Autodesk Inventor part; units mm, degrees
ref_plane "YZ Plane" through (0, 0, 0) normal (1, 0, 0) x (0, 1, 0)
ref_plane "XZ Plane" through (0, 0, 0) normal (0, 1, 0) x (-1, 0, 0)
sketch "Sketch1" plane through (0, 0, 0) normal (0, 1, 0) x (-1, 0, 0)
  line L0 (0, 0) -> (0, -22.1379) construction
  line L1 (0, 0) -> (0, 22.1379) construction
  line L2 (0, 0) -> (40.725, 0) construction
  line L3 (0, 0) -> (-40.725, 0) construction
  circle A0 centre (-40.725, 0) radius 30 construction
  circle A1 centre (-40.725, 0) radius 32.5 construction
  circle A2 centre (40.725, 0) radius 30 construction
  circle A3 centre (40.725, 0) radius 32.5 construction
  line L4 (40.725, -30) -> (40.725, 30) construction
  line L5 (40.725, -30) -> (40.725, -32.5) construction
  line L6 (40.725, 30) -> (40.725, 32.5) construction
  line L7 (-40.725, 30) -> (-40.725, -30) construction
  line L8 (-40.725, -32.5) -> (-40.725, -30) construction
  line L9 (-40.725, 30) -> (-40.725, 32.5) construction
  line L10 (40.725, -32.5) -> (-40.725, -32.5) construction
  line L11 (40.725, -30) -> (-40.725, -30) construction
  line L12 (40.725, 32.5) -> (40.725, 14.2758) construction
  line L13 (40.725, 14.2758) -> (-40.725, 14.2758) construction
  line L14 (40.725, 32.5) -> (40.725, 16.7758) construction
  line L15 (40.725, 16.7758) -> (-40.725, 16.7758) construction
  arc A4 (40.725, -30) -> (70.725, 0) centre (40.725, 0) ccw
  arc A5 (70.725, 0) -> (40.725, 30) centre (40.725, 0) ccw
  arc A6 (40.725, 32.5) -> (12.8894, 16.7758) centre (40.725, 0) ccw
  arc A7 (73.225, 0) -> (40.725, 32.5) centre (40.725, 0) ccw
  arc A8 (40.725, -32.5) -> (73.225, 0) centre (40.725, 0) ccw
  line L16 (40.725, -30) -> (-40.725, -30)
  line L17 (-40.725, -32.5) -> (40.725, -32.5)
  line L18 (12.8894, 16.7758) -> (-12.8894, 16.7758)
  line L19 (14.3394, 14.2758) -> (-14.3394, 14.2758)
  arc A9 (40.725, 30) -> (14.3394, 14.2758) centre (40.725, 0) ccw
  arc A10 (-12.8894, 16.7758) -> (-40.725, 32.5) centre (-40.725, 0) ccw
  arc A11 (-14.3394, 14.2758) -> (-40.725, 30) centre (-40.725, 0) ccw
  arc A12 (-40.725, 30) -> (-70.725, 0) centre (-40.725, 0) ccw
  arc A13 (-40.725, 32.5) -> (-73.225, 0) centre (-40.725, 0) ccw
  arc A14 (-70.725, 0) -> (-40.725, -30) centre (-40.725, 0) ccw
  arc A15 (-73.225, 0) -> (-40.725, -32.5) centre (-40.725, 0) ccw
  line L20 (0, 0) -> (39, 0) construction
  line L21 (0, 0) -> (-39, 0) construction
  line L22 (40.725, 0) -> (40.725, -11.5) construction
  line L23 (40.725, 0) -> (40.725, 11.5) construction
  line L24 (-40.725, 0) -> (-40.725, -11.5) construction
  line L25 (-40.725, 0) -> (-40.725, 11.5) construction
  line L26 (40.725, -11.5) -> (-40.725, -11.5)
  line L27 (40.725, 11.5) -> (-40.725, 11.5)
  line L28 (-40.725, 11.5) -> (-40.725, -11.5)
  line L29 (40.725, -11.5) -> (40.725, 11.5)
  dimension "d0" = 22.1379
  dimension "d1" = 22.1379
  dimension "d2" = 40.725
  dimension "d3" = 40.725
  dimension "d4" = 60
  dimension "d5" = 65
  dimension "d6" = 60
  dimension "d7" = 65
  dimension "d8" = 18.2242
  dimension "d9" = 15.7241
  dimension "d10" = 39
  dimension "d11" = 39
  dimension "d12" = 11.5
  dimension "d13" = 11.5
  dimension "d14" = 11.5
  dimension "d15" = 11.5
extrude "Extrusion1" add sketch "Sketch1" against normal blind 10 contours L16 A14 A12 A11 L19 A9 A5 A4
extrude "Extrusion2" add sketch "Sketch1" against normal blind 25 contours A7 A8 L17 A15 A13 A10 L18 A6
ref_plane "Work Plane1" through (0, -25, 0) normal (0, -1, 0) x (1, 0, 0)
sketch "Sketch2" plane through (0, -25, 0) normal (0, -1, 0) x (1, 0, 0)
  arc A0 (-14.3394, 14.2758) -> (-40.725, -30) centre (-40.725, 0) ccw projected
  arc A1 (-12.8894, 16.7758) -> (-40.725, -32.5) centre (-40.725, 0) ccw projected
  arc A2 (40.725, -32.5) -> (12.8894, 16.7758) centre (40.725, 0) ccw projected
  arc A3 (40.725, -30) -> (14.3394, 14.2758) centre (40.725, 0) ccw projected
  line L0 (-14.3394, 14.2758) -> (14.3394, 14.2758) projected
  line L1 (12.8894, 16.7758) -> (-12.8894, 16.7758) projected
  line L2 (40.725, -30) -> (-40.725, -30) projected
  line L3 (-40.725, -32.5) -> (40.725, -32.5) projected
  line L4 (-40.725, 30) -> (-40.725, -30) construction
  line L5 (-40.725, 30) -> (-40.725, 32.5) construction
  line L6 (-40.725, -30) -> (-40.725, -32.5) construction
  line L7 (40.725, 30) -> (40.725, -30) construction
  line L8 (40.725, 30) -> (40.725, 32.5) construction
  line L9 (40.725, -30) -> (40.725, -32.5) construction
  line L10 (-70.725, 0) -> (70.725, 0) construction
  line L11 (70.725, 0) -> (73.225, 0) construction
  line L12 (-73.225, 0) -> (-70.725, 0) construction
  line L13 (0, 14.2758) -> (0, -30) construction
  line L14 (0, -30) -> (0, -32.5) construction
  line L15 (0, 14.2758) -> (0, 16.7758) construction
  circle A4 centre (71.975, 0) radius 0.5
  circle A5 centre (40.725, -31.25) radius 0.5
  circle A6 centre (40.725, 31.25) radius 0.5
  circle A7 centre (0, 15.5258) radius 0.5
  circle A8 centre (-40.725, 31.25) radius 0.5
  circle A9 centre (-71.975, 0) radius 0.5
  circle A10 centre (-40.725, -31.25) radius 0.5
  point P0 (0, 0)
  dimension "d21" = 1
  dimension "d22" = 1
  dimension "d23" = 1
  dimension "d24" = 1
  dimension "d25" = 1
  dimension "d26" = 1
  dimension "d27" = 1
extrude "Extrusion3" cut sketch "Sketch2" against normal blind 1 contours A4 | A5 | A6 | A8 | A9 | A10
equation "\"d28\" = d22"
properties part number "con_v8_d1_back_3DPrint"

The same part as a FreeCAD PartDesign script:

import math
import FreeCAD as App
import Part
import Sketcher
from FreeCAD import Vector
Q = App.Units.Quantity


def add_polygon(sketch, points):
    """Adds a closed chain of lines whose ends are joined by coincident constraints."""
    first, n = sketch.GeometryCount, len(points)
    for a, b in zip(points, points[1:] + points[:1]):
        sketch.addGeometry(Part.LineSegment(App.Vector(*a, 0), App.Vector(*b, 0)), False)
    for i in range(n):
        sketch.addConstraint(Sketcher.Constraint("Coincident", first + i, 2, first + (i + 1) % n, 1))

doc = App.newDocument("Part")
body = doc.addObject("PartDesign::Body", "Body")

# Sketch on XZ plane
sketch1 = body.newObject("Sketcher::SketchObject", "Sketch")
sketch1.AttachmentSupport = (doc.getObject("XZ_Plane"), [""])
sketch1.MapMode = "FlatFace"
sketch1.addGeometry(Part.LineSegment(Vector(41, -30, 0), Vector(-41, -30, 0)), False)  # 0
sketch1.addGeometry(Part.ArcOfCircle(Part.Circle(Vector(-41, 0, 0), Vector(0, 0, 1), 30), math.radians(90), math.radians(270)), False)  # 1
sketch1.addGeometry(Part.ArcOfCircle(Part.Circle(Vector(-41, 0, 0), Vector(0, 0, 1), 30), math.radians(28), math.radians(90)), False)  # 2
sketch1.addGeometry(Part.LineSegment(Vector(-14, 14, 0), Vector(14, 14, 0)), False)  # 3
sketch1.addGeometry(Part.ArcOfCircle(Part.Circle(Vector(41, 0, 0), Vector(0, 0, 1), 30), math.radians(90), math.radians(152)), False)  # 4
sketch1.addGeometry(Part.ArcOfCircle(Part.Circle(Vector(41, 0, 0), Vector(0, 0, 1), 30), math.radians(-90), math.radians(90)), False)  # 5
add_polygon(sketch1, [(-41, 12), (-41, -12), (41, -12), (41, 12)])  # lines 6-9
sketch1.addConstraint([
    Sketcher.Constraint("Tangent", 0, 2, 1, 2),
    Sketcher.Constraint("Tangent", 1, 1, 2, 2),
    Sketcher.Constraint("Coincident", 2, 1, 3, 1),
    Sketcher.Constraint("Coincident", 3, 2, 4, 2),
    Sketcher.Constraint("Tangent", 4, 1, 5, 2),
    Sketcher.Constraint("Tangent", 5, 1, 0, 1),
    Sketcher.Constraint("Horizontal", 0),
    Sketcher.Constraint("Horizontal", 3),
    Sketcher.Constraint("Vertical", 6),
    Sketcher.Constraint("Horizontal", 7),
    Sketcher.Constraint("Vertical", 8),
    Sketcher.Constraint("Horizontal", 9),
    Sketcher.Constraint("Equal", 1, 2),
    Sketcher.Constraint("Equal", 2, 4),
    Sketcher.Constraint("Equal", 4, 5),
    Sketcher.Constraint("Symmetric", 1, 3, 4, 3, -1, 1),
    Sketcher.Constraint("Symmetric", 6, 2, 8, 2, -1, 1),
    Sketcher.Constraint("Vertical", 0, 2, 1, 1),
    Sketcher.Constraint("Vertical", 5, 3, 4, 1),
    Sketcher.Constraint("Vertical", 1, 1, 6, 2),
    Sketcher.Constraint("Radius", 1, Q("30 mm")),
    Sketcher.Constraint("DistanceY", 6, 2, -1, 1, Q("11.5 mm")),
    Sketcher.Constraint("DistanceX", 1, 3, -1, 1, Q("40.725 mm")),
    Sketcher.Constraint("DistanceY", 2, 1, 1, 1, Q("15.7242 mm")),
])
pad1 = body.newObject("PartDesign::Pad", "Pad")
pad1.Profile = sketch1
pad1.Length = 10

# Sketch on XZ plane
sketch2 = body.newObject("Sketcher::SketchObject", "Sketch001")
sketch2.AttachmentSupport = (doc.getObject("XZ_Plane"), [""])
sketch2.MapMode = "FlatFace"
sketch2.addGeometry([
    Part.ArcOfCircle(Part.Circle(Vector(-41, 0, 0), Vector(0, 0, 1), 32), math.radians(90), math.radians(270)),  # 0
    Part.ArcOfCircle(Part.Circle(Vector(-41, 0, 0), Vector(0, 0, 1), 32), math.radians(31), math.radians(90)),  # 1
    Part.LineSegment(Vector(-13, 17, 0), Vector(13, 17, 0)),  # 2
    Part.ArcOfCircle(Part.Circle(Vector(41, 0, 0), Vector(0, 0, 1), 32), math.radians(90), math.radians(149)),  # 3
    Part.ArcOfCircle(Part.Circle(Vector(41, 0, 0), Vector(0, 0, 1), 32), math.radians(-90), math.radians(90)),  # 4
    Part.LineSegment(Vector(41, -32, 0), Vector(-41, -32, 0)),  # 5
    Part.ArcOfCircle(Part.Circle(Vector(-41, 0, 0), Vector(0, 0, 1), 30), math.radians(90), math.radians(270)),  # 6
    Part.LineSegment(Vector(-41, -30, 0), Vector(41, -30, 0)),  # 7
    Part.ArcOfCircle(Part.Circle(Vector(41, 0, 0), Vector(0, 0, 1), 30), math.radians(-90), math.radians(90)),  # 8
    Part.ArcOfCircle(Part.Circle(Vector(41, 0, 0), Vector(0, 0, 1), 30), math.radians(90), math.radians(152)),  # 9
    Part.LineSegment(Vector(14, 14, 0), Vector(-14, 14, 0)),  # 10
    Part.ArcOfCircle(Part.Circle(Vector(-41, 0, 0), Vector(0, 0, 1), 30), math.radians(28), math.radians(90)),  # 11
], False)
sketch2.addConstraint([
    Sketcher.Constraint("Tangent", 0, 1, 1, 2),
    Sketcher.Constraint("Coincident", 1, 1, 2, 1),
    Sketcher.Constraint("Coincident", 2, 2, 3, 2),
    Sketcher.Constraint("Tangent", 3, 1, 4, 2),
    Sketcher.Constraint("Tangent", 4, 1, 5, 1),
    Sketcher.Constraint("Tangent", 5, 2, 0, 2),
    Sketcher.Constraint("Tangent", 6, 2, 7, 1),
    Sketcher.Constraint("Tangent", 7, 2, 8, 1),
    Sketcher.Constraint("Tangent", 8, 2, 9, 1),
    Sketcher.Constraint("Coincident", 9, 2, 10, 1),
    Sketcher.Constraint("Coincident", 10, 2, 11, 1),
    Sketcher.Constraint("Tangent", 11, 2, 6, 1),
    Sketcher.Constraint("Horizontal", 2),
    Sketcher.Constraint("Horizontal", 5),
    Sketcher.Constraint("Horizontal", 7),
    Sketcher.Constraint("Horizontal", 10),
    Sketcher.Constraint("Coincident", 6, 3, 0, 3),
    Sketcher.Constraint("Coincident", 8, 3, 3, 3),
    Sketcher.Constraint("Equal", 0, 1),
    Sketcher.Constraint("Equal", 1, 3),
    Sketcher.Constraint("Equal", 3, 4),
    Sketcher.Constraint("Equal", 8, 9),
    Sketcher.Constraint("Equal", 9, 11),
    Sketcher.Constraint("Symmetric", 0, 3, 3, 3, -1, 1),
    Sketcher.Constraint("Vertical", 11, 3, 0, 1),
    Sketcher.Constraint("Vertical", 9, 3, 3, 1),
    Sketcher.Constraint("Vertical", 7, 2, 8, 2),
    Sketcher.Constraint("Vertical", 6, 2, 11, 2),
    Sketcher.Constraint("Radius", 6, Q("30 mm")),
    Sketcher.Constraint("Radius", 0, Q("32.5 mm")),
    Sketcher.Constraint("DistanceX", 0, 3, -1, 1, Q("40.725 mm")),
    Sketcher.Constraint("DistanceY", 1, 1, 0, 1, Q("15.7242 mm")),
    Sketcher.Constraint("DistanceY", 9, 2, 2, 2, Q("2.5 mm")),
])
pad2 = body.newObject("PartDesign::Pad", "Pad001")
pad2.Profile = sketch2
pad2.Length = 25

# Sketch on XZ plane
sketch3 = body.newObject("Sketcher::SketchObject", "Sketch002")
sketch3.AttachmentSupport = (doc.getObject("XZ_Plane"), [""])
sketch3.MapMode = "FlatFace"
sketch3.AttachmentOffset = App.Placement(Vector(0, 0, 25), App.Rotation())
sketch3.addGeometry([
    Part.Circle(Vector(72, 0, 0), Vector(0, 0, 1), 0.5),  # 0
    Part.Circle(Vector(40.7, -31.2, 0), Vector(0, 0, 1), 0.5),  # 1
    Part.Circle(Vector(40.7, 31.2, 0), Vector(0, 0, 1), 0.5),  # 2
    Part.Circle(Vector(-40.7, 31.2, 0), Vector(0, 0, 1), 0.5),  # 3
    Part.Circle(Vector(-72, 0, 0), Vector(0, 0, 1), 0.5),  # 4
    Part.Circle(Vector(-40.7, -31.2, 0), Vector(0, 0, 1), 0.5),  # 5
], False)
sketch3.addConstraint([
    Sketcher.Constraint("Equal", 0, 1),
    Sketcher.Constraint("Equal", 1, 2),
    Sketcher.Constraint("Equal", 2, 3),
    Sketcher.Constraint("Equal", 3, 4),
    Sketcher.Constraint("Equal", 4, 5),
    Sketcher.Constraint("Symmetric", 1, 3, 3, 3, -1, 1),
    Sketcher.Constraint("Symmetric", 0, 3, 4, 3, -1, 1),
    Sketcher.Constraint("Symmetric", 2, 3, 5, 3, -1, 1),
    Sketcher.Constraint("Symmetric", 2, 3, 3, 3, -2),
    Sketcher.Constraint("PointOnObject", 0, 3, -1),
    Sketcher.Constraint("Diameter", 0, Q("1 mm")),
    Sketcher.Constraint("DistanceY", 1, 3, 2, 3, Q("62.5 mm")),
    Sketcher.Constraint("DistanceX", 3, 3, 0, 3, Q("112.7 mm")),
    Sketcher.Constraint("DistanceX", 1, 3, 0, 3, Q("31.25 mm")),
])
pocket1 = body.newObject("PartDesign::Pocket", "Pocket")
pocket1.Profile = sketch3
pocket1.Length = 1

doc.recompute()
